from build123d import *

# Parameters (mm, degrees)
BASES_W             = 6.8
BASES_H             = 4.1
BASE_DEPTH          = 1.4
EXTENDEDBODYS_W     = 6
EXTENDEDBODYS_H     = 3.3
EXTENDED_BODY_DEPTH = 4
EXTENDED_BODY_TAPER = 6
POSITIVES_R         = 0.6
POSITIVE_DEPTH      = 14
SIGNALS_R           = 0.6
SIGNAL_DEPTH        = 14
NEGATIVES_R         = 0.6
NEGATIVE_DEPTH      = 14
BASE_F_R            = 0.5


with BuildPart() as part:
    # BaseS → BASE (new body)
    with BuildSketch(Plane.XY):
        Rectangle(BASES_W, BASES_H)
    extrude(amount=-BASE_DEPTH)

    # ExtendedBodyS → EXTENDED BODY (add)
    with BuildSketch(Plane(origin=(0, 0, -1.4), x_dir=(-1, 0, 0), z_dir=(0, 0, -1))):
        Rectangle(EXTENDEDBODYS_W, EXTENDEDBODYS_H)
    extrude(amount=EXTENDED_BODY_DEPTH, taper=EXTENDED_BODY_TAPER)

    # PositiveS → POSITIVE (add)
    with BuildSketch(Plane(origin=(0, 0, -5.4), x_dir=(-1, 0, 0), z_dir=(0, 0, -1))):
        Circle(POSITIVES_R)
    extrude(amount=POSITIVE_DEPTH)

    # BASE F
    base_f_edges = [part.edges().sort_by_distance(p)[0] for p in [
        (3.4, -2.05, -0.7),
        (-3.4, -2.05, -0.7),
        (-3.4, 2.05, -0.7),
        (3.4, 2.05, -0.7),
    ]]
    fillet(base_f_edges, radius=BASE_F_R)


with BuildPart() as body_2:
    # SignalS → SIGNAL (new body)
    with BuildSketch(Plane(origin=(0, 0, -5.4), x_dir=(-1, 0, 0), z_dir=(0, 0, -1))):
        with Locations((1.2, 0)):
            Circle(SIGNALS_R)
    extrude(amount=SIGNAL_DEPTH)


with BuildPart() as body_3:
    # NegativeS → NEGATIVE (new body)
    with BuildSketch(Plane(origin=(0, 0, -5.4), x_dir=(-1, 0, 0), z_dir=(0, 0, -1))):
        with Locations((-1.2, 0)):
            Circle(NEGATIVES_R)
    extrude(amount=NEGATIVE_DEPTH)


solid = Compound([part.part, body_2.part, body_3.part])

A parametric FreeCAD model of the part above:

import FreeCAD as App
import Part
import Sketcher
from FreeCAD import Vector


def edges_at(feature, points):
    """Names of the edges that pass closest to the given points."""
    edges = feature.Shape.Edges
    near = lambda p: min(range(len(edges)), key=lambda i: edges[i].distToShape(Part.Vertex(*p))[0])
    return sorted({f"Edge{near(p) + 1}" for p in points})


def add_polygon(sketch, points):
    """Adds a closed chain of lines whose ends are joined by coincident constraints."""
    first, n = sketch.GeometryCount, len(points)
    for a, b in zip(points, points[1:] + points[:1]):
        sketch.addGeometry(Part.LineSegment(App.Vector(*a, 0), App.Vector(*b, 0)), False)
    for i in range(n):
        sketch.addConstraint(Sketcher.Constraint("Coincident", first + i, 2, first + (i + 1) % n, 1))

doc = App.newDocument("Part")
body = doc.addObject("PartDesign::Body", "Body")

# Sketch on XY plane
sketch1 = body.newObject("Sketcher::SketchObject", "Sketch")
sketch1.AttachmentSupport = (doc.getObject("XY_Plane"), [""])
sketch1.MapMode = "FlatFace"
add_polygon(sketch1, [(-3.4, 2), (-3.4, -2), (3.4, -2), (3.4, 2)])  # lines 0-3
sketch1.addConstraint(Sketcher.Constraint("Vertical", 0))
sketch1.addConstraint(Sketcher.Constraint("Horizontal", 1))
sketch1.addConstraint(Sketcher.Constraint("Vertical", 2))
sketch1.addConstraint(Sketcher.Constraint("Horizontal", 3))
sketch1.addConstraint(Sketcher.Constraint("Symmetric", 0, 2, 2, 2, -1, 1))
sketch1.addConstraint(Sketcher.Constraint("DistanceX", 1, 1, 1, 2, 6.8))
sketch1.addConstraint(Sketcher.Constraint("DistanceY", 0, 2, 0, 1, 4.1))
pad1 = body.newObject("PartDesign::Pad", "Pad")
pad1.Profile = sketch1
pad1.Length = 1.4
pad1.Reversed = True

# Sketch on XY plane
sketch2 = body.newObject("Sketcher::SketchObject", "Sketch001")
sketch2.AttachmentSupport = (doc.getObject("XY_Plane"), [""])
sketch2.MapMode = "FlatFace"
sketch2.AttachmentOffset = App.Placement(Vector(0, 0, -1.4), App.Rotation())
add_polygon(sketch2, [(3, 1.6), (3, -1.6), (-3, -1.6), (-3, 1.6)])  # lines 0-3
sketch2.addConstraint(Sketcher.Constraint("Vertical", 0))
sketch2.addConstraint(Sketcher.Constraint("Horizontal", 1))
sketch2.addConstraint(Sketcher.Constraint("Vertical", 2))
sketch2.addConstraint(Sketcher.Constraint("Horizontal", 3))
sketch2.addConstraint(Sketcher.Constraint("Symmetric", 0, 2, 2, 2, -1, 1))
sketch2.addConstraint(Sketcher.Constraint("DistanceX", 1, 2, 1, 1, 6.0))
sketch2.addConstraint(Sketcher.Constraint("DistanceY", 0, 2, 0, 1, 3.3))
pad2 = body.newObject("PartDesign::Pad", "Pad001")
pad2.Profile = sketch2
pad2.Length = 4
pad2.Reversed = True
pad2.TaperAngle = -6

# Sketch on XY plane
sketch3 = body.newObject("Sketcher::SketchObject", "Sketch002")
sketch3.AttachmentSupport = (doc.getObject("XY_Plane"), [""])
sketch3.MapMode = "FlatFace"
sketch3.AttachmentOffset = App.Placement(Vector(0, 0, -5.4), App.Rotation())
sketch3.addGeometry(Part.Circle(Vector(0, 0, 0), Vector(0, 0, 1), 0.6), False)
sketch3.addConstraint(Sketcher.Constraint("Coincident", 0, 3, -1, 1))
sketch3.addConstraint(Sketcher.Constraint("Diameter", 0, 1.2))
pad3 = body.newObject("PartDesign::Pad", "Pad002")
pad3.Profile = sketch3
pad3.Length = 14
pad3.Reversed = True
doc.recompute()

fillet = body.newObject("PartDesign::Fillet", "Fillet")
fillet.Base = (pad3, edges_at(pad3, [
    (3.4, -2.05, -0.7),
    (-3.4, -2.05, -0.7),
    (-3.4, 2.05, -0.7),
    (3.4, 2.05, -0.7),
]))
fillet.Radius = 0.5
body2 = doc.addObject("PartDesign::Body", "Body001")

# Sketch on XY plane
sketch4 = body2.newObject("Sketcher::SketchObject", "Sketch003")
sketch4.AttachmentSupport = (doc.getObject("XY_Plane001"), [""])
sketch4.MapMode = "FlatFace"
sketch4.AttachmentOffset = App.Placement(Vector(0, 0, -5.4), App.Rotation())
sketch4.addGeometry(Part.Circle(Vector(-1.2, 0, 0), Vector(0, 0, 1), 0.6), False)
sketch4.addConstraint(Sketcher.Constraint("PointOnObject", 0, 3, -1))
sketch4.addConstraint(Sketcher.Constraint("Diameter", 0, 1.2))
sketch4.addConstraint(Sketcher.Constraint("DistanceX", 0, 3, -1, 1, 1.2))
pad4 = body2.newObject("PartDesign::Pad", "Pad003")
pad4.Profile = sketch4
pad4.Length = 14
pad4.Reversed = True
body3 = doc.addObject("PartDesign::Body", "Body002")

# Sketch on XY plane
sketch5 = body3.newObject("Sketcher::SketchObject", "Sketch004")
sketch5.AttachmentSupport = (doc.getObject("XY_Plane002"), [""])
sketch5.MapMode = "FlatFace"
sketch5.AttachmentOffset = App.Placement(Vector(0, 0, -5.4), App.Rotation())
sketch5.addGeometry(Part.Circle(Vector(1.2, 0, 0), Vector(0, 0, 1), 0.6), False)
sketch5.addConstraint(Sketcher.Constraint("PointOnObject", 0, 3, -1))
sketch5.addConstraint(Sketcher.Constraint("Diameter", 0, 1.2))
sketch5.addConstraint(Sketcher.Constraint("DistanceX", -1, 1, 0, 3, 1.2))
pad5 = body3.newObject("PartDesign::Pad", "Pad004")
pad5.Profile = sketch5
pad5.Length = 14
pad5.Reversed = True

doc.recompute()
